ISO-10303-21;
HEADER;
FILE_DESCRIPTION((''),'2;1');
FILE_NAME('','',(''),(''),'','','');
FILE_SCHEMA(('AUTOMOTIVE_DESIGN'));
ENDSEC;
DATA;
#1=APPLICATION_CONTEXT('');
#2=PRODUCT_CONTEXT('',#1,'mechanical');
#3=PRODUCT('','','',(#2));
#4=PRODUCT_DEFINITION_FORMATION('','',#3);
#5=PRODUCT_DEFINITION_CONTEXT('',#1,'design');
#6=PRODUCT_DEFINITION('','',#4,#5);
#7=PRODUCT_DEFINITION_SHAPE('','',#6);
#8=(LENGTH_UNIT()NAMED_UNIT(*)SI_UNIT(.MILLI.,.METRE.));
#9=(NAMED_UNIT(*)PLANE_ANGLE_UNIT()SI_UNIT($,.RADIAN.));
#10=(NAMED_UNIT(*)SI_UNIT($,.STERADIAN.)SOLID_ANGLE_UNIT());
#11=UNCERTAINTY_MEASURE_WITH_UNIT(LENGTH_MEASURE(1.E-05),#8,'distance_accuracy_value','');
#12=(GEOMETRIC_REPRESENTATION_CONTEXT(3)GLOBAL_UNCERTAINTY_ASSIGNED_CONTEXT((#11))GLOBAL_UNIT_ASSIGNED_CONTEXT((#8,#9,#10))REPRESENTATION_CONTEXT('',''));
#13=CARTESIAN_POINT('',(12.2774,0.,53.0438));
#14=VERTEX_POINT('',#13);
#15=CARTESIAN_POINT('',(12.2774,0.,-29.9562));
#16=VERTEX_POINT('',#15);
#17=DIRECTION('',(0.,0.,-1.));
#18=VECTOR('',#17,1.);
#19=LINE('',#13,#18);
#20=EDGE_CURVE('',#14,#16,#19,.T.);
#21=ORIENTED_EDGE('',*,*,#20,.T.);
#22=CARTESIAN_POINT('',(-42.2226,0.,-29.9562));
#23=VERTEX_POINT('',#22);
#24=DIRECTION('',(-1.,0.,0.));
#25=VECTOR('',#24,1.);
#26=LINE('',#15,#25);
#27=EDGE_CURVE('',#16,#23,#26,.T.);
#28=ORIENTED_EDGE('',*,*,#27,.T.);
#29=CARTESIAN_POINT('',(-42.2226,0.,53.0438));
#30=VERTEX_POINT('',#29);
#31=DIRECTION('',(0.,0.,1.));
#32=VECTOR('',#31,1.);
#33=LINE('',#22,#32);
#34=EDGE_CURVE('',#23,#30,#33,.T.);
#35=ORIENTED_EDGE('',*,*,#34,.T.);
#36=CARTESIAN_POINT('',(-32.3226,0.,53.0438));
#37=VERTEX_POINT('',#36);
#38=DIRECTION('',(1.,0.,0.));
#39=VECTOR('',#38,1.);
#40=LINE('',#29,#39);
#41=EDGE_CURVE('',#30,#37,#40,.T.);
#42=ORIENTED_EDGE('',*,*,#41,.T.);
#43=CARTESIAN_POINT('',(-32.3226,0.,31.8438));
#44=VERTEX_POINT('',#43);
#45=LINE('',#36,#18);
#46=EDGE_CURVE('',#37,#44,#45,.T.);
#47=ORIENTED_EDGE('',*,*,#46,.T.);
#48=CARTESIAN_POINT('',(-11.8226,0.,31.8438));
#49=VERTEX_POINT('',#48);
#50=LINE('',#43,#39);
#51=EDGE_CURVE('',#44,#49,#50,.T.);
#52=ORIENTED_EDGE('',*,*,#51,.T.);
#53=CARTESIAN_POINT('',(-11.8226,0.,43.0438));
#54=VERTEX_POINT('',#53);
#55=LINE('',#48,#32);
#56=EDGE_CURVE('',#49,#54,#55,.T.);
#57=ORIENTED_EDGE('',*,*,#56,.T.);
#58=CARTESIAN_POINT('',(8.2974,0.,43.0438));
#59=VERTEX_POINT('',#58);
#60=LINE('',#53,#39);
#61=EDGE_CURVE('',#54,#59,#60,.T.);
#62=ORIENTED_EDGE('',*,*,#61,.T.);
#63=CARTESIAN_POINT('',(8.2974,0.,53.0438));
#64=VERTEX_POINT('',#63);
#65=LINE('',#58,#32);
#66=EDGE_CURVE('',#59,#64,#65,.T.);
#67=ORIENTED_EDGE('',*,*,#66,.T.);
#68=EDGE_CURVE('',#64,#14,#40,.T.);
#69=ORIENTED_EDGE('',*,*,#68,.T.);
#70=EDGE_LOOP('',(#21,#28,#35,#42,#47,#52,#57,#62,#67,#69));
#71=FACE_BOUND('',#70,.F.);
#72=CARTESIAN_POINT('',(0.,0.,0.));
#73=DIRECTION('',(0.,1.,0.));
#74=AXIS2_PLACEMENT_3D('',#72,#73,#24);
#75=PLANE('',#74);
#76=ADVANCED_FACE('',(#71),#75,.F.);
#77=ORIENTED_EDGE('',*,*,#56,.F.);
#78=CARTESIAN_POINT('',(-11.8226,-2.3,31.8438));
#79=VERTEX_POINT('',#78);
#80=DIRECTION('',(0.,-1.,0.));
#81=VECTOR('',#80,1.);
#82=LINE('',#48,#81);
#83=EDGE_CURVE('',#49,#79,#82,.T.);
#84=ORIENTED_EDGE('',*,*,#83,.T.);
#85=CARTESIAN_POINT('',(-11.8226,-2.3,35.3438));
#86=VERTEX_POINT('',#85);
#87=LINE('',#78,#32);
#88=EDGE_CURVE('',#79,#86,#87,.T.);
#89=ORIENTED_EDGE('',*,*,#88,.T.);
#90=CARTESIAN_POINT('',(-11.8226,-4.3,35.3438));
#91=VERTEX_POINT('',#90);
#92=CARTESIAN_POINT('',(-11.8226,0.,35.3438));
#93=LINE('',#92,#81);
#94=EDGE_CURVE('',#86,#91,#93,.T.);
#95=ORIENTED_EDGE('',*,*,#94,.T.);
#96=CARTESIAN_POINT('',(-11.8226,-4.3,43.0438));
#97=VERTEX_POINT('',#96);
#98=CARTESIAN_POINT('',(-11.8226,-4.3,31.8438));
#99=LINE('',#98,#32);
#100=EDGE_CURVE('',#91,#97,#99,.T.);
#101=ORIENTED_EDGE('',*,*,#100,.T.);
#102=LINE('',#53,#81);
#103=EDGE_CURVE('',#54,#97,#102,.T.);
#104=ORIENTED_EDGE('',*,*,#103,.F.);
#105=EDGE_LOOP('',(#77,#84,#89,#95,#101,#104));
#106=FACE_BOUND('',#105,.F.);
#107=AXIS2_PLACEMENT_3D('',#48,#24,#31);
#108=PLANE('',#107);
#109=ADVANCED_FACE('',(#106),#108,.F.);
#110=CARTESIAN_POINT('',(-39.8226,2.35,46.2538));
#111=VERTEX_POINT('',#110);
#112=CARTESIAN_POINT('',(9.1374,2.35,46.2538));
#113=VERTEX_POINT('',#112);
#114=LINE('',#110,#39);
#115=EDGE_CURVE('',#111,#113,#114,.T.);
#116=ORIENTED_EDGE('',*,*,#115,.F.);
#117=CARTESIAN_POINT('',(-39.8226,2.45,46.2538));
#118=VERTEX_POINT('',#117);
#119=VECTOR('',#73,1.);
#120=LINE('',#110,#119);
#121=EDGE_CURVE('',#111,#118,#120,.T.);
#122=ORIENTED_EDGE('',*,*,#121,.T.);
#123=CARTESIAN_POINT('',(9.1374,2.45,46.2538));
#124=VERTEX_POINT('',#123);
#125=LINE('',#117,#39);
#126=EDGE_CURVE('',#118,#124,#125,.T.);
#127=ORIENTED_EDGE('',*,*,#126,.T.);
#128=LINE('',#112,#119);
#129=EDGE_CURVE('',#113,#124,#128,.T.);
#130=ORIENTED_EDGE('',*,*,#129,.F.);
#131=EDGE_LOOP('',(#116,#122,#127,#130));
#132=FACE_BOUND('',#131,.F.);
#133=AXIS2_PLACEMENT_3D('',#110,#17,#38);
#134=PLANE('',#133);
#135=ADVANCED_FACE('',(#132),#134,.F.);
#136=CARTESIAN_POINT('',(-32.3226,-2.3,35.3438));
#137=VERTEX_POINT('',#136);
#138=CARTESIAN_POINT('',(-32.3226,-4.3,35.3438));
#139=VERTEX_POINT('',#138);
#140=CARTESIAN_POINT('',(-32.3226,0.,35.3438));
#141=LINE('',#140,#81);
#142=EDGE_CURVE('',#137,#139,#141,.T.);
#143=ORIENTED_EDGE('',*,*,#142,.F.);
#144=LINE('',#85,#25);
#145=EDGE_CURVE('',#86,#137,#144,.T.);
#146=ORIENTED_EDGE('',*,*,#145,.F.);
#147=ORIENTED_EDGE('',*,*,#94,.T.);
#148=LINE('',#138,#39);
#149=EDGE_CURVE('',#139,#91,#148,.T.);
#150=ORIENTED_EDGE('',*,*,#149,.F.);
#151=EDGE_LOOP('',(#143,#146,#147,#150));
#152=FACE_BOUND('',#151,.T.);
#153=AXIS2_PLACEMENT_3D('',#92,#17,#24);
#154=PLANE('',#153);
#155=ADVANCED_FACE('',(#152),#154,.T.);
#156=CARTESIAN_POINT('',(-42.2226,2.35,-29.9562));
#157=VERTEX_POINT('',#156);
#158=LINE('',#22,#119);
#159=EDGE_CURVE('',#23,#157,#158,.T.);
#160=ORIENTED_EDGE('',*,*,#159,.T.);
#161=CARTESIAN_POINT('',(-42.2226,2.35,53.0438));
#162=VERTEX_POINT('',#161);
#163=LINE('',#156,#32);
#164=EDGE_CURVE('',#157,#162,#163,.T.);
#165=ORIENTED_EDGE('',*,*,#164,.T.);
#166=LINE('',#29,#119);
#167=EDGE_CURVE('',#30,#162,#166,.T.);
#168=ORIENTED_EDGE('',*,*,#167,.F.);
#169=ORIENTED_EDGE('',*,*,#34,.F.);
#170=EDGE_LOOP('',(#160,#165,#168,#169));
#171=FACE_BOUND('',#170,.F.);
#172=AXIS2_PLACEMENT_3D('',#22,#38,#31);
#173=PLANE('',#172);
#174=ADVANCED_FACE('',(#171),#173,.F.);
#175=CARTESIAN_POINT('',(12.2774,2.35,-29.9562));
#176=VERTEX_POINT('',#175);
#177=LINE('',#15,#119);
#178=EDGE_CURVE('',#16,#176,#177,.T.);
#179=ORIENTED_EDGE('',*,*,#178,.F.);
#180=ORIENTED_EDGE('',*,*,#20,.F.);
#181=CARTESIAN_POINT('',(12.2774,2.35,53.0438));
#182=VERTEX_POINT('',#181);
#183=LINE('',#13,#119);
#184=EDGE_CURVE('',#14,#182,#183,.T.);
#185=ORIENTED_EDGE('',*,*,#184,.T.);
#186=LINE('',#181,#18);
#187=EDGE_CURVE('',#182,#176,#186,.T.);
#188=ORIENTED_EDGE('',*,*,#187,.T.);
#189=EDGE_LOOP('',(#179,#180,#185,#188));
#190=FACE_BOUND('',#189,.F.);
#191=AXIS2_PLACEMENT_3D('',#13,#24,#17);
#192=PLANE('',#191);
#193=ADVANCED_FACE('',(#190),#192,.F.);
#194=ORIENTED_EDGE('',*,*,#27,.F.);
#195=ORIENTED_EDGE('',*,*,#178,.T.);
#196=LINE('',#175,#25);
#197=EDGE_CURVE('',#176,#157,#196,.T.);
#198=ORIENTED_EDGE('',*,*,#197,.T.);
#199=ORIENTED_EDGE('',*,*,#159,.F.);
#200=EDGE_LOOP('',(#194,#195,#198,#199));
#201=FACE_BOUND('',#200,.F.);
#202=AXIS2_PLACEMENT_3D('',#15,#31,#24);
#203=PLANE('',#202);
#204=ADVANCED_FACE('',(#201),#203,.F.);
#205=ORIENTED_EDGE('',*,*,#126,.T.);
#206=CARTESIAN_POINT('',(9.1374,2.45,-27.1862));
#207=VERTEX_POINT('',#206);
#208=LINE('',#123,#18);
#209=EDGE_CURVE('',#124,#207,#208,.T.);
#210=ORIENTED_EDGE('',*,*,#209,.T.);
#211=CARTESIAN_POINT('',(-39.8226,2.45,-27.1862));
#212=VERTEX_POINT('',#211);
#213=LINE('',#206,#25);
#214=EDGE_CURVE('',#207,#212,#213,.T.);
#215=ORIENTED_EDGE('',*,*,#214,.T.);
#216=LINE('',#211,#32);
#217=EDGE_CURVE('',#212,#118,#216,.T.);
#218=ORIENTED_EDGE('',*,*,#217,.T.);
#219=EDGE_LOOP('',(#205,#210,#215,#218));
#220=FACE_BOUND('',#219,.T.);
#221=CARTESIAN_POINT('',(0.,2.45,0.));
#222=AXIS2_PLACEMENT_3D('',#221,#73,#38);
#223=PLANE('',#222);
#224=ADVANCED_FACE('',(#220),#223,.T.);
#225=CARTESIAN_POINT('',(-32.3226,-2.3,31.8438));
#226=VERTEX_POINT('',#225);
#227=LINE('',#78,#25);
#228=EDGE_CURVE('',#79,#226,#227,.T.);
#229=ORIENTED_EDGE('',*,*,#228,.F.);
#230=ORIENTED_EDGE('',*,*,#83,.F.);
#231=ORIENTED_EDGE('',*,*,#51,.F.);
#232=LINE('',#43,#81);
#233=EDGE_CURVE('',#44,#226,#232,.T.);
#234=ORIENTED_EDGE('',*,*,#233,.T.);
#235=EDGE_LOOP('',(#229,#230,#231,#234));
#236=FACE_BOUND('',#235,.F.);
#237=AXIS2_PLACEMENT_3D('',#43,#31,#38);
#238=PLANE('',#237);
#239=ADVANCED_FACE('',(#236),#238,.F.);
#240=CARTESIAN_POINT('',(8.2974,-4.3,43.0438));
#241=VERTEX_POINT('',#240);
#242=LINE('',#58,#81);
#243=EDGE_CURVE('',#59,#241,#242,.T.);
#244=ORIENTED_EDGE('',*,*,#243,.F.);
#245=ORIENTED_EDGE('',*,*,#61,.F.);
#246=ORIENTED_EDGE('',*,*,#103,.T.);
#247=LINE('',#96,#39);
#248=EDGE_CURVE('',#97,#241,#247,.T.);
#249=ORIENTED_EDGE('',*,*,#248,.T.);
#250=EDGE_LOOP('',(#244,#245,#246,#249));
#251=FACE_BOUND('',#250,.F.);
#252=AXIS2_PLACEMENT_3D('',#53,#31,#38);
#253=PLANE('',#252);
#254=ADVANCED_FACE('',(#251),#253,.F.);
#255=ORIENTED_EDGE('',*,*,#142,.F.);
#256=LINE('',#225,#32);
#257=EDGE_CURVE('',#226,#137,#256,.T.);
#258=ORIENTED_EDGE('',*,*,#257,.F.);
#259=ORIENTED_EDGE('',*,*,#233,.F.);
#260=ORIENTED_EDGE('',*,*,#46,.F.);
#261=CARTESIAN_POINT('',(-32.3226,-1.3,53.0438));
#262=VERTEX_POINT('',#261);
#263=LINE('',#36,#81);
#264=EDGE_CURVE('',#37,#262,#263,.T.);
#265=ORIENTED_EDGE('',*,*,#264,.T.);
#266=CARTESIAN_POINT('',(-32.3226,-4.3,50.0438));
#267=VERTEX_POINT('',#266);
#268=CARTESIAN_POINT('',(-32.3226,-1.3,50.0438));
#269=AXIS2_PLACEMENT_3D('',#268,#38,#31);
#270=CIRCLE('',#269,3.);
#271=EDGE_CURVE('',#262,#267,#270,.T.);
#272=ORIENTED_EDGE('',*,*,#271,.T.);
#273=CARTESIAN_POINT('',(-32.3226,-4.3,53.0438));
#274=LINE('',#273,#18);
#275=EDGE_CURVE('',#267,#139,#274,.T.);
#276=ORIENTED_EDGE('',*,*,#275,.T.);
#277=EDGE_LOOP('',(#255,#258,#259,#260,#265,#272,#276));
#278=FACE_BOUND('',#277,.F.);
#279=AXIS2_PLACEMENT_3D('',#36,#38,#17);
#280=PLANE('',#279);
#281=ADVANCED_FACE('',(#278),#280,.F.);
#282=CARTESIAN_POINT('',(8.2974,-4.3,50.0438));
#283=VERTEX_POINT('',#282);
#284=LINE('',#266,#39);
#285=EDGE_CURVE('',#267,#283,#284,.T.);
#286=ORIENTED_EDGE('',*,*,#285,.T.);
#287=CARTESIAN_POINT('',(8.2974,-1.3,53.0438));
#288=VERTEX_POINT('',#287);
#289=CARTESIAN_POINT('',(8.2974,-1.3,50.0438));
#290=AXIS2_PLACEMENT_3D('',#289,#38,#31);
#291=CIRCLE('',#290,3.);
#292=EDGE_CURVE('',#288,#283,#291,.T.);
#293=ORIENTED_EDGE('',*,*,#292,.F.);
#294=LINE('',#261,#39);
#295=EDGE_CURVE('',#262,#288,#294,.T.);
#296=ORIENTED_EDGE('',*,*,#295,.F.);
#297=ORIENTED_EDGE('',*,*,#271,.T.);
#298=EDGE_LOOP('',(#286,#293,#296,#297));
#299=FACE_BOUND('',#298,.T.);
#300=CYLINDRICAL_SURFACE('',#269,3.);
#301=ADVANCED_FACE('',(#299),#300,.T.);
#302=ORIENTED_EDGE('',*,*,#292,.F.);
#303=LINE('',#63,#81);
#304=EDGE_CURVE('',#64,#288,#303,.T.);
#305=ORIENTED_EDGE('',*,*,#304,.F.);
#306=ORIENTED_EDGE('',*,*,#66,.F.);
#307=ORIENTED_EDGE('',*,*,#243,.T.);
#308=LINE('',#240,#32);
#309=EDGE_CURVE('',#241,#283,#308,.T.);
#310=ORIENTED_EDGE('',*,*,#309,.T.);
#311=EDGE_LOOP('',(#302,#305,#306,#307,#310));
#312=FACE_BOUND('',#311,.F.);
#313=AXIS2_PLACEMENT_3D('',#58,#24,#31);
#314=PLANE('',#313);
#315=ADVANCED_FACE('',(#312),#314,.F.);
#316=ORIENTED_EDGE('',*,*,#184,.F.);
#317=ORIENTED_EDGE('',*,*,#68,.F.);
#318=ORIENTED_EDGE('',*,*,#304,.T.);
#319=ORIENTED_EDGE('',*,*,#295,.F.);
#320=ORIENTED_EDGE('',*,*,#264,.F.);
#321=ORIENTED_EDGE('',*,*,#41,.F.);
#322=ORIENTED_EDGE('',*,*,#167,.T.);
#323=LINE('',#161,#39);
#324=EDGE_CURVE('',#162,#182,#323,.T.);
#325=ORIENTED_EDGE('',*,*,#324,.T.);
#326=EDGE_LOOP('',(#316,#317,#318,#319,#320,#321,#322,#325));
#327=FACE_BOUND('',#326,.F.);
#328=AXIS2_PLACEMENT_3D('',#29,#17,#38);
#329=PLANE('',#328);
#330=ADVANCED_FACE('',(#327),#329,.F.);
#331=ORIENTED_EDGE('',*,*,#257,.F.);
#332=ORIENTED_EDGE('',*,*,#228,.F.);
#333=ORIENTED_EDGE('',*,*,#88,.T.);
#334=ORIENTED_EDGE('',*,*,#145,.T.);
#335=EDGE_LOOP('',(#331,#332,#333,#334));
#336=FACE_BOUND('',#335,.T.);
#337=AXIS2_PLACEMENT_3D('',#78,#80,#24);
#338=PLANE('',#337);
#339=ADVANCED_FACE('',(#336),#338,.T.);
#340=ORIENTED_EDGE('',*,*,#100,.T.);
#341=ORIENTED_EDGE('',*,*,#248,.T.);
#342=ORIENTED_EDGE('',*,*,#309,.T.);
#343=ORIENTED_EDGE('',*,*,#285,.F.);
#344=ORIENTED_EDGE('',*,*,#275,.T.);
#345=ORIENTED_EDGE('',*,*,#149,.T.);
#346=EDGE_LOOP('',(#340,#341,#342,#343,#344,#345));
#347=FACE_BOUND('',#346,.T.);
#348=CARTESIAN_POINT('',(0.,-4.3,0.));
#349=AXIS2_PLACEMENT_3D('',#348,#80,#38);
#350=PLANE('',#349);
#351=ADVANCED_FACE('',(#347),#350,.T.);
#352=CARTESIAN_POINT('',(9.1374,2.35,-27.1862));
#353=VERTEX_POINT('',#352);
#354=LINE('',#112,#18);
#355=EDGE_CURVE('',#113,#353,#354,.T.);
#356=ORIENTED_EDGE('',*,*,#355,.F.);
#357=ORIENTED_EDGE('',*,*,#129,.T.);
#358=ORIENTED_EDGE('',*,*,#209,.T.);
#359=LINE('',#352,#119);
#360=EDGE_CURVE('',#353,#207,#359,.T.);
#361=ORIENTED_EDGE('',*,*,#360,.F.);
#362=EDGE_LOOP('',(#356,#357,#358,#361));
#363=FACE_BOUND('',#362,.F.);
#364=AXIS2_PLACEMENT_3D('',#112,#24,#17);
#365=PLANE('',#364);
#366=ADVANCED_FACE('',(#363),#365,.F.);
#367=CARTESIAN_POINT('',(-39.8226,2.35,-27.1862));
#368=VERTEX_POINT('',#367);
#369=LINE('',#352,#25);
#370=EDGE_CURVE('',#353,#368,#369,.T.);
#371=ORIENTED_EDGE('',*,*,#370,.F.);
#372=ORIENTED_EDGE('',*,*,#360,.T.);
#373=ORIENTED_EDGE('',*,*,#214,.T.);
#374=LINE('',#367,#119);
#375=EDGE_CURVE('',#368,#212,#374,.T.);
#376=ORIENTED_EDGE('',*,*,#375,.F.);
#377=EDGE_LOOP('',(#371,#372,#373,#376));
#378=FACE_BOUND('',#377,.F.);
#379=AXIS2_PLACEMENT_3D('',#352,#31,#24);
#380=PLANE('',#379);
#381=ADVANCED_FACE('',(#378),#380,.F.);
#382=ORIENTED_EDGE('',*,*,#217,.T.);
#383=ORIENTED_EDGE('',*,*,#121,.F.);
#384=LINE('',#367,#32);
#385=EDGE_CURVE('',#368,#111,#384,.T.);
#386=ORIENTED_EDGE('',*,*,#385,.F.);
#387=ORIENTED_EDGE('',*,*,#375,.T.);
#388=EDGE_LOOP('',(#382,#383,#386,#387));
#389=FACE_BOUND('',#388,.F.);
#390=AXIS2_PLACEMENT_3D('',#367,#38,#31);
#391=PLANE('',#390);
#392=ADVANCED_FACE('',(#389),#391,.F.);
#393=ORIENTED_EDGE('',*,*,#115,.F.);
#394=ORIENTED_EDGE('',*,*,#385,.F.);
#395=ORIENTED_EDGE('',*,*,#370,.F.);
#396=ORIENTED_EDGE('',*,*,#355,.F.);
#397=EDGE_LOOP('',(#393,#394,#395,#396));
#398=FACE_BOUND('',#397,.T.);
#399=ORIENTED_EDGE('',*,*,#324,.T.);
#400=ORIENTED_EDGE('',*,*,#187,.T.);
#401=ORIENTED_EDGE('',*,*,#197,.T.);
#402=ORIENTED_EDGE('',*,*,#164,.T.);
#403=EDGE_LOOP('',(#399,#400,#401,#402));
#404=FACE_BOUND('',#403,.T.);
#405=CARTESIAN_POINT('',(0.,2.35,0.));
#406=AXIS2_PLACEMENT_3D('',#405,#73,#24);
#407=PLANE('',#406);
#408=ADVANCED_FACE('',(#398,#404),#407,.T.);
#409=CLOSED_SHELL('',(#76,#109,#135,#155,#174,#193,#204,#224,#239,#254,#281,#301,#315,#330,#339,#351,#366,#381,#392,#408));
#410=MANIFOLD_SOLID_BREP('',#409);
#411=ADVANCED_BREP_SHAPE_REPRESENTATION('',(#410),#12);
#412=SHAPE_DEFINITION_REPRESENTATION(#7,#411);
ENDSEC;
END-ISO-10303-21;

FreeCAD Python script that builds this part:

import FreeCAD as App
import Part
import Sketcher

V = App.Vector


def edges_at(feature, points):
    """Names of the edges that pass closest to the given points."""
    edges = feature.Shape.Edges
    near = lambda p: min(range(len(edges)), key=lambda i: edges[i].distToShape(Part.Vertex(*p))[0])
    return sorted({f"Edge{near(p) + 1}" for p in points})


def add_polygon(sketch, points):
    """Adds a closed chain of lines whose ends are joined by coincident constraints."""
    first, n = sketch.GeometryCount, len(points)
    for a, b in zip(points, points[1:] + points[:1]):
        sketch.addGeometry(Part.LineSegment(App.Vector(*a, 0), App.Vector(*b, 0)), False)
    for i in range(n):
        sketch.addConstraint(Sketcher.Constraint("Coincident", first + i, 2, first + (i + 1) % n, 1))

doc = App.newDocument("Part")
body = doc.addObject("PartDesign::Body", "Body")

sketch1 = body.newObject("Sketcher::SketchObject", "Sketch")
sketch1.AttachmentSupport = (doc.getObject("XZ_Plane"), [""])
sketch1.MapMode = "FlatFace"
add_polygon(sketch1, [(-42.2226, -29.9562), (-42.2226, 53.0438), (12.2774, 53.0438), (12.2774, -29.9562)])
sketch1.addConstraint(Sketcher.Constraint("Vertical", 0))
sketch1.addConstraint(Sketcher.Constraint("Horizontal", 1))
sketch1.addConstraint(Sketcher.Constraint("Vertical", 2))
sketch1.addConstraint(Sketcher.Constraint("Horizontal", 3))
sketch1.addConstraint(Sketcher.Constraint("DistanceY", 0, 1, 0, 2, 83.0))
sketch1.addConstraint(Sketcher.Constraint("DistanceX", 1, 1, 1, 2, 54.5))
sketch1.addConstraint(Sketcher.Constraint("DistanceX", 0, 2, -1, 1, 42.2226))
sketch1.addConstraint(Sketcher.Constraint("DistanceY", -1, 1, 0, 2, 53.0438))
pad1 = body.newObject("PartDesign::Pad", "Pad")
pad1.Profile = sketch1
pad1.Length = 2.35
pad1.Reversed = True

sketch2 = body.newObject("Sketcher::SketchObject", "Sketch001")
sketch2.AttachmentSupport = (doc.getObject("XZ_Plane"), [""])
sketch2.MapMode = "FlatFace"
sketch2.AttachmentOffset = App.Placement(V(0, 0, -2.35), App.Rotation())
add_polygon(sketch2, [(-39.8226, -27.1862), (-39.8226, 46.2538), (9.1374, 46.2538), (9.1374, -27.1862)])
sketch2.addConstraint(Sketcher.Constraint("Vertical", 0))
sketch2.addConstraint(Sketcher.Constraint("Horizontal", 1))
sketch2.addConstraint(Sketcher.Constraint("Vertical", 2))
sketch2.addConstraint(Sketcher.Constraint("Horizontal", 3))
sketch2.addConstraint(Sketcher.Constraint("DistanceX", 1, 1, 1, 2, 48.96))
sketch2.addConstraint(Sketcher.Constraint("DistanceY", 0, 1, 0, 2, 73.44))
sketch2.addConstraint(Sketcher.Constraint("DistanceX", 0, 2, -1, 1, 39.8226))
sketch2.addConstraint(Sketcher.Constraint("DistanceY", -1, 1, 0, 2, 46.2538))
pad2 = body.newObject("PartDesign::Pad", "Pad001")
pad2.Profile = sketch2
pad2.Length = 0.1
pad2.Reversed = True

sketch3 = body.newObject("Sketcher::SketchObject", "Sketch002")
sketch3.AttachmentSupport = (doc.getObject("XZ_Plane"), [""])
sketch3.MapMode = "FlatFace"
add_polygon(sketch3, [(8.2974, 43.0438), (8.2974, 53.0438), (-32.3226, 53.0438), (-32.3226, 31.8438), (-11.8226, 31.8438), (-11.8226, 43.0438)])
sketch3.addConstraint(Sketcher.Constraint("Vertical", 0))
sketch3.addConstraint(Sketcher.Constraint("Horizontal", 1))
sketch3.addConstraint(Sketcher.Constraint("Vertical", 2))
sketch3.addConstraint(Sketcher.Constraint("Horizontal", 3))
sketch3.addConstraint(Sketcher.Constraint("Vertical", 4))
sketch3.addConstraint(Sketcher.Constraint("Horizontal", 5))
sketch3.addConstraint(Sketcher.Constraint("DistanceY", 0, 1, 0, 2, 10.0))
sketch3.addConstraint(Sketcher.Constraint("DistanceX", 3, 1, 3, 2, 20.5))
sketch3.addConstraint(Sketcher.Constraint("DistanceY", 2, 2, 2, 1, 21.2))
sketch3.addConstraint(Sketcher.Constraint("DistanceX", 1, 2, 1, 1, 40.62))
sketch3.addConstraint(Sketcher.Constraint("DistanceX", -1, 1, 0, 2, 8.2974))
sketch3.addConstraint(Sketcher.Constraint("DistanceY", -1, 1, 0, 2, 53.0438))
pad3 = body.newObject("PartDesign::Pad", "Pad002")
pad3.Profile = sketch3
pad3.Length = 4.3
doc.recompute()

fillet = body.newObject("PartDesign::Fillet", "Fillet")
fillet.Base = (pad3, edges_at(pad3, [(-12.013, -4.3, 53.044)]))
fillet.Radius = 3

sketch4 = body.newObject("Sketcher::SketchObject", "Sketch003")
sketch4.AttachmentSupport = (doc.getObject("XY_Plane"), [""])
sketch4.MapMode = "FlatFace"
sketch4.AttachmentOffset = App.Placement(V(0, 0, 31.8438), App.Rotation())
add_polygon(sketch4, [(-32.3226, -2.3), (-11.8226, -2.3), (-11.8226, -4.3), (-32.3226, -4.3)])
sketch4.addConstraint(Sketcher.Constraint("Horizontal", 0))
sketch4.addConstraint(Sketcher.Constraint("Vertical", 1))
sketch4.addConstraint(Sketcher.Constraint("Horizontal", 2))
sketch4.addConstraint(Sketcher.Constraint("Vertical", 3))
sketch4.addConstraint(Sketcher.Constraint("DistanceY", 1, 2, 1, 1, 2.0))
sketch4.addConstraint(Sketcher.Constraint("DistanceX", 0, 1, 0, 2, 20.5))
sketch4.addConstraint(Sketcher.Constraint("DistanceY", 0, 2, -1, 1, 2.3))
sketch4.addConstraint(Sketcher.Constraint("DistanceX", 0, 2, -1, 1, 11.8226))
pocket1 = body.newObject("PartDesign::Pocket", "Pocket")
pocket1.Profile = sketch4
pocket1.Length = 3.5
pocket1.Reversed = True

doc.recompute()
